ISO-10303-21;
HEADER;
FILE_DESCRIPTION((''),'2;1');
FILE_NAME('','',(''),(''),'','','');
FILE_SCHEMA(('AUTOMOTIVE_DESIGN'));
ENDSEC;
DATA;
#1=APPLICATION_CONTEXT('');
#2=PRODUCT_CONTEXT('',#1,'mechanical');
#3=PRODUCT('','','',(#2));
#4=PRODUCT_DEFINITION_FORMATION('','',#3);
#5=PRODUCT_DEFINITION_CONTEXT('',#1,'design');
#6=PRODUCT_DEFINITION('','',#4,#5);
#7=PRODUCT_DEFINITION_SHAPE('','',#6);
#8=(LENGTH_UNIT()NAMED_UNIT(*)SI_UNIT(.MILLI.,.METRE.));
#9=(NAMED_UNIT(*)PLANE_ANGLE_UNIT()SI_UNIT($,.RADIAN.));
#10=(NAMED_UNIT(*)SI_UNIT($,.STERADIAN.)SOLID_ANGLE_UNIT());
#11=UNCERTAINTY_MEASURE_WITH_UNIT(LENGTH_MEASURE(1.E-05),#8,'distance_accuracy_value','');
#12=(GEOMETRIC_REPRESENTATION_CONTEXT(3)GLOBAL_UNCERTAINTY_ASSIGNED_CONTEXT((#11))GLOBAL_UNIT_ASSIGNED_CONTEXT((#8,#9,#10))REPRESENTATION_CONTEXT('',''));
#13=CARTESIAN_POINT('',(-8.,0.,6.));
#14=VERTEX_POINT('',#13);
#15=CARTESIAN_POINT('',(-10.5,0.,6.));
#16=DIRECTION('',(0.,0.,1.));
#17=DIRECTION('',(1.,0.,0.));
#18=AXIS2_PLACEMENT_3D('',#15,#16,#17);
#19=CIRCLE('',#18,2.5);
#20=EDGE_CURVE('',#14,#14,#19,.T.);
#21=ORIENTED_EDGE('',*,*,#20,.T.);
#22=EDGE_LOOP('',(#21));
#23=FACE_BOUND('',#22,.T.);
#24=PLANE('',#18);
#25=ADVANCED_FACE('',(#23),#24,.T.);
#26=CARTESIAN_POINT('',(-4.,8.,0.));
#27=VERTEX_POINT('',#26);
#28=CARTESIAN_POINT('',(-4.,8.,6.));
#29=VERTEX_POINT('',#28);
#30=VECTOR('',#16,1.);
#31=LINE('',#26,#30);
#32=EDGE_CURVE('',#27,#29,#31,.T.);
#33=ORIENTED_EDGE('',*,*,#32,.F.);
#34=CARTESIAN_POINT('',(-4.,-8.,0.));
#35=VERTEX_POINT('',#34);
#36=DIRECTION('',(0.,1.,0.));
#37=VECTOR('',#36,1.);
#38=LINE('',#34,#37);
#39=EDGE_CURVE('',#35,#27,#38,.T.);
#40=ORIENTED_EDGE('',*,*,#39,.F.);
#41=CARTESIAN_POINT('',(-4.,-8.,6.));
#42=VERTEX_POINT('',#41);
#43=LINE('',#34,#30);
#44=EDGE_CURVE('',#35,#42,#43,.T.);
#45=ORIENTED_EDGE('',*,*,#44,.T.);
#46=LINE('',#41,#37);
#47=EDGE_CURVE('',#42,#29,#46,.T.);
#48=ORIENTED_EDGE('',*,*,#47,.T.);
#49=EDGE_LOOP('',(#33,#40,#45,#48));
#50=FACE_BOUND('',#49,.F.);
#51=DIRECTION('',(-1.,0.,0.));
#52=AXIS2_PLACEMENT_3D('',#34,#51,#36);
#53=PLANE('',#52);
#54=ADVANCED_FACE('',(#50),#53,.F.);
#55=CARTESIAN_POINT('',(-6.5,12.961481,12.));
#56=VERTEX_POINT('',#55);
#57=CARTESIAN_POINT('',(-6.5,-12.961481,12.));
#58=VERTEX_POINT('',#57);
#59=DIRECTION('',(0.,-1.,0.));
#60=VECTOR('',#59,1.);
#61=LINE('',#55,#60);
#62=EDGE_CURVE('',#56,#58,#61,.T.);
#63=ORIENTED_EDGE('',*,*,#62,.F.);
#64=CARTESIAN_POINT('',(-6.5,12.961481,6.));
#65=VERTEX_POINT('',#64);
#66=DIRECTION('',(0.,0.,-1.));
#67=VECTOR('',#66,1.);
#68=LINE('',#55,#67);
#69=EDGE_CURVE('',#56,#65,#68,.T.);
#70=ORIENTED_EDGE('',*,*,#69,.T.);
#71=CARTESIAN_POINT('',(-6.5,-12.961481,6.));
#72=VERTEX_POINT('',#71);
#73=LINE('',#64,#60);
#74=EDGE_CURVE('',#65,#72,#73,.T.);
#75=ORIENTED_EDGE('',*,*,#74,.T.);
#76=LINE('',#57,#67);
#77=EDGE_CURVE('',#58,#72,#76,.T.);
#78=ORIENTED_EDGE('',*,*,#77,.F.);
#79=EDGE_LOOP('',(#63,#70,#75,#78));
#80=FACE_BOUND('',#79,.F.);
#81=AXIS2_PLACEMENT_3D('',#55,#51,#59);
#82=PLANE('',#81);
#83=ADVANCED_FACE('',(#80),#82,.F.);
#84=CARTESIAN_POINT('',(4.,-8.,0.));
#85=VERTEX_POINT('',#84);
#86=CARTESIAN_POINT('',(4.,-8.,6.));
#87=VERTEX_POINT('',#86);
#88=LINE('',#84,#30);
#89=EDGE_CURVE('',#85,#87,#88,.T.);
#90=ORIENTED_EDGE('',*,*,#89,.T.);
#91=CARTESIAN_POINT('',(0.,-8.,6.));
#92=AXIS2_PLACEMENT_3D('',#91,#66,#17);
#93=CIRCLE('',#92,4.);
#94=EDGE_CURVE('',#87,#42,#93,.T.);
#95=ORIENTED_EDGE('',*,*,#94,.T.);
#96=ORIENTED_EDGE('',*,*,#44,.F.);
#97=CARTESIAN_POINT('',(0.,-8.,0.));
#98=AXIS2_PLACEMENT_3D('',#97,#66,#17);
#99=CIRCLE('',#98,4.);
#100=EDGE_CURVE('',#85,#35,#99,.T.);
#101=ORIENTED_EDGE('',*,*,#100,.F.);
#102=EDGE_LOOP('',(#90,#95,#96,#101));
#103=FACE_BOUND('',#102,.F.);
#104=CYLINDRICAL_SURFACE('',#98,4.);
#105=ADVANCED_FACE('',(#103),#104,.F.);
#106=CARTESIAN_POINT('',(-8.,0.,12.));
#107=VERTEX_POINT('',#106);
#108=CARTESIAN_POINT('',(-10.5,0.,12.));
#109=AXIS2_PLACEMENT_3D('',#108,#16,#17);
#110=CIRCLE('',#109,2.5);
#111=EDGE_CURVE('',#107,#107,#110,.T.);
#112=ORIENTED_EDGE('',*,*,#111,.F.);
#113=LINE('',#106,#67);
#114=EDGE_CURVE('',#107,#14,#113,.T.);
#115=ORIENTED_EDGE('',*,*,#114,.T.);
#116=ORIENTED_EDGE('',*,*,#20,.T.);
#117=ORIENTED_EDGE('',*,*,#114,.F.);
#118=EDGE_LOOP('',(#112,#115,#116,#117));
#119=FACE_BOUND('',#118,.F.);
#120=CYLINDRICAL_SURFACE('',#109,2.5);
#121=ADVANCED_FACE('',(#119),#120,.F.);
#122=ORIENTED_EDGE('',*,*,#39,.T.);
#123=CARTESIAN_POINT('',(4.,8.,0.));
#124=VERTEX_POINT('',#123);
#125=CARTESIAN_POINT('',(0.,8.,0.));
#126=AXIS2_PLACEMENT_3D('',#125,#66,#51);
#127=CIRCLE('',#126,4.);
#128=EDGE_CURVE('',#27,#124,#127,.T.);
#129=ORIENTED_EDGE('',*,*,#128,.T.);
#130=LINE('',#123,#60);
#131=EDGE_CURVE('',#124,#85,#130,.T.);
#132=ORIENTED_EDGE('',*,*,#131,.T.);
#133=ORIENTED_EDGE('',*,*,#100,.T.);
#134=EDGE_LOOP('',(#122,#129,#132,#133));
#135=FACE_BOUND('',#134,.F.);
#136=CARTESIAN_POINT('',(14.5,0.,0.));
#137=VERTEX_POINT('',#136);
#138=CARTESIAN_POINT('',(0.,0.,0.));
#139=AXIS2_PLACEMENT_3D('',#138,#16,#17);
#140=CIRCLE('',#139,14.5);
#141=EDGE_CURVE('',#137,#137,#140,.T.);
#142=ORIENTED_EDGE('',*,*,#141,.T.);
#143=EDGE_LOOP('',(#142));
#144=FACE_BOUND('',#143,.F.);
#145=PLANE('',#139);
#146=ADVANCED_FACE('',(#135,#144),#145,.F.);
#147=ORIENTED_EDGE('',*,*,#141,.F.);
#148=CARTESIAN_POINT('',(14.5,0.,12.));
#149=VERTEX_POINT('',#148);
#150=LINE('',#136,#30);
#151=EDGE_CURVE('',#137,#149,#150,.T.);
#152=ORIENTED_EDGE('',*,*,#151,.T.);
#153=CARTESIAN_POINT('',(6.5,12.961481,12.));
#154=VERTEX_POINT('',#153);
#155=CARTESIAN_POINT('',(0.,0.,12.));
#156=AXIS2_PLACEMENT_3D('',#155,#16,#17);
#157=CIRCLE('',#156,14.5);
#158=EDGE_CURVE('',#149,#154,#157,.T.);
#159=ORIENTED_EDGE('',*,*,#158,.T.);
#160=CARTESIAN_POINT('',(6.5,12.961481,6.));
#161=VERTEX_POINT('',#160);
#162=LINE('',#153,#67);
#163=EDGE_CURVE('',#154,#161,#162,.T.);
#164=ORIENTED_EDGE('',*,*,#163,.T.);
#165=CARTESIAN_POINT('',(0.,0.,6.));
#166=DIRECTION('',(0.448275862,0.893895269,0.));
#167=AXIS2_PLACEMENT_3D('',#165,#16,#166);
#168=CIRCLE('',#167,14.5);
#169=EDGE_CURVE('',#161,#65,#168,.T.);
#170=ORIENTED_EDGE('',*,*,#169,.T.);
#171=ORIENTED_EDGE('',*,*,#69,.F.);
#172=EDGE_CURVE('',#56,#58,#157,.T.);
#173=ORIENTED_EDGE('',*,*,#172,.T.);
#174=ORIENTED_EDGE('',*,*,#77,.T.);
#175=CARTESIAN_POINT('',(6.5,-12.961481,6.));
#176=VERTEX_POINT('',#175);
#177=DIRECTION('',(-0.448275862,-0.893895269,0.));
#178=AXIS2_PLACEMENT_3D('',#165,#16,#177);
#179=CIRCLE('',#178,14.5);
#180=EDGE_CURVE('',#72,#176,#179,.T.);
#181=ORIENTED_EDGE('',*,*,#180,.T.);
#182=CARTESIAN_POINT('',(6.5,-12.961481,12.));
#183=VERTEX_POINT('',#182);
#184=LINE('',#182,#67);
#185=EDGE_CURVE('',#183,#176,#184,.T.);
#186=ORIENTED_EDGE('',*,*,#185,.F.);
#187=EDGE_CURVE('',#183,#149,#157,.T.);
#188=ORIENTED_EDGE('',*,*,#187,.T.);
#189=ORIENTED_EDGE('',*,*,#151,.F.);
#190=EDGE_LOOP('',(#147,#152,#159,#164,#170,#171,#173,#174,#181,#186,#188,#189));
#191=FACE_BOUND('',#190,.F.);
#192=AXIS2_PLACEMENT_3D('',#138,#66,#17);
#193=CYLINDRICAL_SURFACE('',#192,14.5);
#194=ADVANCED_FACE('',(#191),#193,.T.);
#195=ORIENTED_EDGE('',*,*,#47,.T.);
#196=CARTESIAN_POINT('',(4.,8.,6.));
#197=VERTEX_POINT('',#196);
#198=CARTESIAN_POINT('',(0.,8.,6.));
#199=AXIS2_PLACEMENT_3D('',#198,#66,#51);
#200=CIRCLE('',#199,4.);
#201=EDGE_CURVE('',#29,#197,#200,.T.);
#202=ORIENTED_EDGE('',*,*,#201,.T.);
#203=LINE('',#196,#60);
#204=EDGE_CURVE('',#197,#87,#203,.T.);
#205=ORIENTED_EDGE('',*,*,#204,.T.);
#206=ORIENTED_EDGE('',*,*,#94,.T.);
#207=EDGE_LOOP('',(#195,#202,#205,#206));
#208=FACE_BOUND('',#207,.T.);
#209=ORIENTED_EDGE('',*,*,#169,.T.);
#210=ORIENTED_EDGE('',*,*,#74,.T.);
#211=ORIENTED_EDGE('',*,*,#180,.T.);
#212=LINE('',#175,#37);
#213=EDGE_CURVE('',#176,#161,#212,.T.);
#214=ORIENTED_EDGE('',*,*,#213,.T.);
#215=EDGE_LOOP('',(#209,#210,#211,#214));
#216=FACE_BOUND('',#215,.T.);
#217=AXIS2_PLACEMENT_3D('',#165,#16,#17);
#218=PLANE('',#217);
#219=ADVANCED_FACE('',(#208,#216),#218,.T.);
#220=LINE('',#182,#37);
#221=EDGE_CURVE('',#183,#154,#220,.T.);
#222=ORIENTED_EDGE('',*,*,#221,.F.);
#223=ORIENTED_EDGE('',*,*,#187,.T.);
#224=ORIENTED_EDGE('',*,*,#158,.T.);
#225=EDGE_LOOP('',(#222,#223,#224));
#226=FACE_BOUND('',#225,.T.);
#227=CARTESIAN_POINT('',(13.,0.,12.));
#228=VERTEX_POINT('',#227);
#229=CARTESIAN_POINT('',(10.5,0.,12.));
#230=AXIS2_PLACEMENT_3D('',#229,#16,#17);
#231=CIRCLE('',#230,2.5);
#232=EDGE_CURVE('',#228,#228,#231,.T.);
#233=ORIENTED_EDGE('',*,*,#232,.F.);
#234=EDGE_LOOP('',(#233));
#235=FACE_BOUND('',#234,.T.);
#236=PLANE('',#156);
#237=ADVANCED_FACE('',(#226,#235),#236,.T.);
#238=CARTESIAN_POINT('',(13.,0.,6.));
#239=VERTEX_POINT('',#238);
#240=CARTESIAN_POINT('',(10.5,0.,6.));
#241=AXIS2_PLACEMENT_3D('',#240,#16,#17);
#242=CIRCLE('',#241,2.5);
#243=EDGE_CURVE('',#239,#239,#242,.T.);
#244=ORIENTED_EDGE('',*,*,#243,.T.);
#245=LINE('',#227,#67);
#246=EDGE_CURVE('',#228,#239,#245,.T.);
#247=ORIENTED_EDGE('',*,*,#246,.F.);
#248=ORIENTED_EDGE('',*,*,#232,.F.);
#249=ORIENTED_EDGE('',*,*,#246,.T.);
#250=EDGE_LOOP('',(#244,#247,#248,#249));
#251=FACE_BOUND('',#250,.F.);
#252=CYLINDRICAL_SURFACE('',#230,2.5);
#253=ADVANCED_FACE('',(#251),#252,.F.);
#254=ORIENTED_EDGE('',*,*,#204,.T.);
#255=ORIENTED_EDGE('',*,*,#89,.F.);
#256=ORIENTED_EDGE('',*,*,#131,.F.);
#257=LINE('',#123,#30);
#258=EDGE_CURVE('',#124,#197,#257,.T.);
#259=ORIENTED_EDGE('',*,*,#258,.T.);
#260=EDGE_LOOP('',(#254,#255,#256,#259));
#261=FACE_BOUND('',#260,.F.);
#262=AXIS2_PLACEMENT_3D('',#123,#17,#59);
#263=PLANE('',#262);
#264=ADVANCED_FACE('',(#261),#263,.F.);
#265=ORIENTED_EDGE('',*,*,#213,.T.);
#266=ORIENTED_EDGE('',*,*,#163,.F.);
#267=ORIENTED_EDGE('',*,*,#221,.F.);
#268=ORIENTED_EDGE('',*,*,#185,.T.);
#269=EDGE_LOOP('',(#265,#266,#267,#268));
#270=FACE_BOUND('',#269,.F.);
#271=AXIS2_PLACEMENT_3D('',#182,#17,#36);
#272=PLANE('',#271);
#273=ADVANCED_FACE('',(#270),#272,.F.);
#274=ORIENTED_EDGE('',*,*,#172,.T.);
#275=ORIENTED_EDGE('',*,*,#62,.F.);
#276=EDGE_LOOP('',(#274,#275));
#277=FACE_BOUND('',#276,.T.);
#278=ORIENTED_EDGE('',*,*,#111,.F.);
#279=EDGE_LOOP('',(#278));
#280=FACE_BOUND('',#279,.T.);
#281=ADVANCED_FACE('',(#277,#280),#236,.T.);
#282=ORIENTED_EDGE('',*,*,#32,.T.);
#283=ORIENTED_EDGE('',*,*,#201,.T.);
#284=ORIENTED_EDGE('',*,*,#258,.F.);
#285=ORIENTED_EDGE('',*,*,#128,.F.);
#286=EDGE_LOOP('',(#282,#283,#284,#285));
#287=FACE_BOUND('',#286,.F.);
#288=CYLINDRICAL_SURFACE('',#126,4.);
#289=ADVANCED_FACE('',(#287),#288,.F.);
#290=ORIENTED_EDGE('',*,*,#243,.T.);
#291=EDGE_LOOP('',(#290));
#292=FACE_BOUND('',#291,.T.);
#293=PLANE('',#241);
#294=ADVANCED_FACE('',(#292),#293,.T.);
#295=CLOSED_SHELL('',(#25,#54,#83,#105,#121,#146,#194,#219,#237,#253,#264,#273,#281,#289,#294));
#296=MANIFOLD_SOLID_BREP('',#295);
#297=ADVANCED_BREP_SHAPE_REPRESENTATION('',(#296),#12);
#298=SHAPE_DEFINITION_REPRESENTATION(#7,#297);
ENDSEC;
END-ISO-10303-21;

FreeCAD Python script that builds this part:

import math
import FreeCAD as App
import Part
import Sketcher

V = App.Vector
Q = App.Units.Quantity

doc = App.newDocument("Part")
body = doc.addObject("PartDesign::Body", "Body")

sketch1 = doc.addObject("Sketcher::SketchObject", "Sketch")
body.addObject(sketch1)
sketch1.AttachmentSupport = (doc.XY_Plane, [""])
sketch1.MapMode = "FlatFace"
sketch1.addGeometry(Part.Circle(V(0, 0, 0), V(0, 0, 1), 14.5), False)
sketch1.addGeometry(Part.ArcOfCircle(Part.Circle(V(0, -8, 0), V(0, 0, 1), 4), math.radians(180), math.radians(360)), False)
sketch1.addGeometry(Part.LineSegment(V(-4, -8, 0), V(-4, 8, 0)), False)
sketch1.addGeometry(Part.ArcOfCircle(Part.Circle(V(0, 8, 0), V(0, 0, 1), 4), math.radians(0), math.radians(180)), False)
sketch1.addGeometry(Part.LineSegment(V(4, 8, 0), V(4, -8, 0)), False)
sketch1.addConstraint(Sketcher.Constraint("Tangent", 1, 1, 2, 1))
sketch1.addConstraint(Sketcher.Constraint("Tangent", 2, 2, 3, 2))
sketch1.addConstraint(Sketcher.Constraint("Tangent", 3, 1, 4, 1))
sketch1.addConstraint(Sketcher.Constraint("Tangent", 4, 2, 1, 2))
sketch1.addConstraint(Sketcher.Constraint("Vertical", 2))
sketch1.addConstraint(Sketcher.Constraint("Vertical", 4))
sketch1.addConstraint(Sketcher.Constraint("Coincident", 0, 3, -1, 1))
sketch1.addConstraint(Sketcher.Constraint("Symmetric", 1, 3, 3, 3, -1, 1))
sketch1.addConstraint(Sketcher.Constraint("Diameter", 0, Q("29 mm")))
sketch1.addConstraint(Sketcher.Constraint("Radius", 1, Q("4 mm")))
sketch1.addConstraint(Sketcher.Constraint("DistanceY", 2, 1, 2, 2, Q("16 mm")))
pad1 = doc.addObject("PartDesign::Pad", "Pad")
body.addObject(pad1)
pad1.Profile = sketch1
pad1.Length = 12

sketch2 = doc.addObject("Sketcher::SketchObject", "Sketch001")
body.addObject(sketch2)
sketch2.AttachmentSupport = (doc.XY_Plane, [""])
sketch2.MapMode = "FlatFace"
sketch2.AttachmentOffset = App.Placement(V(0, 0, 12), App.Rotation())
sketch2.addGeometry(Part.Circle(V(-10.5, 0, 0), V(0, 0, 1), 2.5), False)
sketch2.addGeometry(Part.Circle(V(10.5, 0, 0), V(0, 0, 1), 2.5), False)
sketch2.addGeometry(Part.ArcOfCircle(Part.Circle(V(0, 0, 0), V(0, 0, 1), 14.5), math.radians(63), math.radians(117)), False)
sketch2.addGeometry(Part.LineSegment(V(-6.5, 13, 0), V(-6.5, -13, 0)), False)
sketch2.addGeometry(Part.ArcOfCircle(Part.Circle(V(0, 0, 0), V(0, 0, 1), 14.5), math.radians(-117), math.radians(-63)), False)
sketch2.addGeometry(Part.LineSegment(V(6.5, -13, 0), V(6.5, 13, 0)), False)
sketch2.addGeometry(Part.LineSegment(V(4, 8, 0), V(4, -8, 0)), False)
sketch2.addGeometry(Part.ArcOfCircle(Part.Circle(V(0, -8, 0), V(0, 0, 1), 4), math.radians(180), math.radians(360)), False)
sketch2.addGeometry(Part.LineSegment(V(-4, -8, 0), V(-4, 8, 0)), False)
sketch2.addGeometry(Part.ArcOfCircle(Part.Circle(V(0, 8, 0), V(0, 0, 1), 4), math.radians(0), math.radians(180)), False)
sketch2.addConstraint(Sketcher.Constraint("Coincident", 2, 2, 3, 1))
sketch2.addConstraint(Sketcher.Constraint("Coincident", 3, 2, 4, 1))
sketch2.addConstraint(Sketcher.Constraint("Coincident", 4, 2, 5, 1))
sketch2.addConstraint(Sketcher.Constraint("Coincident", 5, 2, 2, 1))
sketch2.addConstraint(Sketcher.Constraint("Tangent", 6, 2, 7, 2))
sketch2.addConstraint(Sketcher.Constraint("Tangent", 7, 1, 8, 1))
sketch2.addConstraint(Sketcher.Constraint("Tangent", 8, 2, 9, 2))
sketch2.addConstraint(Sketcher.Constraint("Tangent", 9, 1, 6, 1))
sketch2.addConstraint(Sketcher.Constraint("Vertical", 3))
sketch2.addConstraint(Sketcher.Constraint("Vertical", 5))
sketch2.addConstraint(Sketcher.Constraint("Vertical", 6))
sketch2.addConstraint(Sketcher.Constraint("Vertical", 8))
sketch2.addConstraint(Sketcher.Constraint("Coincident", 2, 3, -1, 1))
sketch2.addConstraint(Sketcher.Constraint("Coincident", 4, 3, -1, 1))
sketch2.addConstraint(Sketcher.Constraint("Equal", 0, 1))
sketch2.addConstraint(Sketcher.Constraint("Equal", 2, 4))
sketch2.addConstraint(Sketcher.Constraint("Symmetric", 0, 3, 1, 3, -1, 1))
sketch2.addConstraint(Sketcher.Constraint("Symmetric", 7, 3, 9, 3, -1, 1))
sketch2.addConstraint(Sketcher.Constraint("PointOnObject", 0, 3, -1))
sketch2.addConstraint(Sketcher.Constraint("Horizontal", 3, 2, 4, 2))
sketch2.addConstraint(Sketcher.Constraint("Diameter", 0, Q("5 mm")))
sketch2.addConstraint(Sketcher.Constraint("Radius", 7, Q("4 mm")))
sketch2.addConstraint(Sketcher.Constraint("Radius", 2, Q("14.5 mm")))
sketch2.addConstraint(Sketcher.Constraint("DistanceY", 6, 2, 6, 1, Q("16 mm")))
sketch2.addConstraint(Sketcher.Constraint("DistanceX", 0, 3, 1, 3, Q("21 mm")))
sketch2.addConstraint(Sketcher.Constraint("DistanceX", 0, 3, 2, 2, Q("4 mm")))
pocket1 = doc.addObject("PartDesign::Pocket", "Pocket")
body.addObject(pocket1)
pocket1.Profile = sketch2
pocket1.Length = 6

doc.recompute()
